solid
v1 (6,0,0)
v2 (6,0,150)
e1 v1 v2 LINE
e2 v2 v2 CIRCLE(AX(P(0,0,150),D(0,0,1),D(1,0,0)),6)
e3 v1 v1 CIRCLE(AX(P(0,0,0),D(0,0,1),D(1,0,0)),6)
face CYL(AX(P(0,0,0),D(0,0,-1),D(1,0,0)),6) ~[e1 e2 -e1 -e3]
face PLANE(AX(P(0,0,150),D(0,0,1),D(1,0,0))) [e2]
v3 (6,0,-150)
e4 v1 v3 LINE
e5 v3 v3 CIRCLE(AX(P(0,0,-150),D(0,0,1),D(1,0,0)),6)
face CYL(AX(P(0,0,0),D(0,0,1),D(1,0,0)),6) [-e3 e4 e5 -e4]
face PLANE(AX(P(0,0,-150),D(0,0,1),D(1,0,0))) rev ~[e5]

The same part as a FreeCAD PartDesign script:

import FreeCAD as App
import Part
import Sketcher
from FreeCAD import Vector

doc = App.newDocument("Part")
body = doc.addObject("PartDesign::Body", "Body")

sketch1 = body.newObject("Sketcher::SketchObject", "Sketch")
sketch1.AttachmentSupport = (doc.getObject("XY_Plane"), [""])
sketch1.MapMode = "FlatFace"
sketch1.addGeometry(Part.Circle(Vector(0, 0, 0), Vector(0, 0, 1), 6), False)
sketch1.addConstraint([
    Sketcher.Constraint("Coincident", 0, 3, -1, 1),
    Sketcher.Constraint("Diameter", 0, 12.0),
])
pad1 = body.newObject("PartDesign::Pad", "Pad")
pad1.Profile = sketch1
pad1.Length = 300
pad1.Midplane = True

doc.recompute()
